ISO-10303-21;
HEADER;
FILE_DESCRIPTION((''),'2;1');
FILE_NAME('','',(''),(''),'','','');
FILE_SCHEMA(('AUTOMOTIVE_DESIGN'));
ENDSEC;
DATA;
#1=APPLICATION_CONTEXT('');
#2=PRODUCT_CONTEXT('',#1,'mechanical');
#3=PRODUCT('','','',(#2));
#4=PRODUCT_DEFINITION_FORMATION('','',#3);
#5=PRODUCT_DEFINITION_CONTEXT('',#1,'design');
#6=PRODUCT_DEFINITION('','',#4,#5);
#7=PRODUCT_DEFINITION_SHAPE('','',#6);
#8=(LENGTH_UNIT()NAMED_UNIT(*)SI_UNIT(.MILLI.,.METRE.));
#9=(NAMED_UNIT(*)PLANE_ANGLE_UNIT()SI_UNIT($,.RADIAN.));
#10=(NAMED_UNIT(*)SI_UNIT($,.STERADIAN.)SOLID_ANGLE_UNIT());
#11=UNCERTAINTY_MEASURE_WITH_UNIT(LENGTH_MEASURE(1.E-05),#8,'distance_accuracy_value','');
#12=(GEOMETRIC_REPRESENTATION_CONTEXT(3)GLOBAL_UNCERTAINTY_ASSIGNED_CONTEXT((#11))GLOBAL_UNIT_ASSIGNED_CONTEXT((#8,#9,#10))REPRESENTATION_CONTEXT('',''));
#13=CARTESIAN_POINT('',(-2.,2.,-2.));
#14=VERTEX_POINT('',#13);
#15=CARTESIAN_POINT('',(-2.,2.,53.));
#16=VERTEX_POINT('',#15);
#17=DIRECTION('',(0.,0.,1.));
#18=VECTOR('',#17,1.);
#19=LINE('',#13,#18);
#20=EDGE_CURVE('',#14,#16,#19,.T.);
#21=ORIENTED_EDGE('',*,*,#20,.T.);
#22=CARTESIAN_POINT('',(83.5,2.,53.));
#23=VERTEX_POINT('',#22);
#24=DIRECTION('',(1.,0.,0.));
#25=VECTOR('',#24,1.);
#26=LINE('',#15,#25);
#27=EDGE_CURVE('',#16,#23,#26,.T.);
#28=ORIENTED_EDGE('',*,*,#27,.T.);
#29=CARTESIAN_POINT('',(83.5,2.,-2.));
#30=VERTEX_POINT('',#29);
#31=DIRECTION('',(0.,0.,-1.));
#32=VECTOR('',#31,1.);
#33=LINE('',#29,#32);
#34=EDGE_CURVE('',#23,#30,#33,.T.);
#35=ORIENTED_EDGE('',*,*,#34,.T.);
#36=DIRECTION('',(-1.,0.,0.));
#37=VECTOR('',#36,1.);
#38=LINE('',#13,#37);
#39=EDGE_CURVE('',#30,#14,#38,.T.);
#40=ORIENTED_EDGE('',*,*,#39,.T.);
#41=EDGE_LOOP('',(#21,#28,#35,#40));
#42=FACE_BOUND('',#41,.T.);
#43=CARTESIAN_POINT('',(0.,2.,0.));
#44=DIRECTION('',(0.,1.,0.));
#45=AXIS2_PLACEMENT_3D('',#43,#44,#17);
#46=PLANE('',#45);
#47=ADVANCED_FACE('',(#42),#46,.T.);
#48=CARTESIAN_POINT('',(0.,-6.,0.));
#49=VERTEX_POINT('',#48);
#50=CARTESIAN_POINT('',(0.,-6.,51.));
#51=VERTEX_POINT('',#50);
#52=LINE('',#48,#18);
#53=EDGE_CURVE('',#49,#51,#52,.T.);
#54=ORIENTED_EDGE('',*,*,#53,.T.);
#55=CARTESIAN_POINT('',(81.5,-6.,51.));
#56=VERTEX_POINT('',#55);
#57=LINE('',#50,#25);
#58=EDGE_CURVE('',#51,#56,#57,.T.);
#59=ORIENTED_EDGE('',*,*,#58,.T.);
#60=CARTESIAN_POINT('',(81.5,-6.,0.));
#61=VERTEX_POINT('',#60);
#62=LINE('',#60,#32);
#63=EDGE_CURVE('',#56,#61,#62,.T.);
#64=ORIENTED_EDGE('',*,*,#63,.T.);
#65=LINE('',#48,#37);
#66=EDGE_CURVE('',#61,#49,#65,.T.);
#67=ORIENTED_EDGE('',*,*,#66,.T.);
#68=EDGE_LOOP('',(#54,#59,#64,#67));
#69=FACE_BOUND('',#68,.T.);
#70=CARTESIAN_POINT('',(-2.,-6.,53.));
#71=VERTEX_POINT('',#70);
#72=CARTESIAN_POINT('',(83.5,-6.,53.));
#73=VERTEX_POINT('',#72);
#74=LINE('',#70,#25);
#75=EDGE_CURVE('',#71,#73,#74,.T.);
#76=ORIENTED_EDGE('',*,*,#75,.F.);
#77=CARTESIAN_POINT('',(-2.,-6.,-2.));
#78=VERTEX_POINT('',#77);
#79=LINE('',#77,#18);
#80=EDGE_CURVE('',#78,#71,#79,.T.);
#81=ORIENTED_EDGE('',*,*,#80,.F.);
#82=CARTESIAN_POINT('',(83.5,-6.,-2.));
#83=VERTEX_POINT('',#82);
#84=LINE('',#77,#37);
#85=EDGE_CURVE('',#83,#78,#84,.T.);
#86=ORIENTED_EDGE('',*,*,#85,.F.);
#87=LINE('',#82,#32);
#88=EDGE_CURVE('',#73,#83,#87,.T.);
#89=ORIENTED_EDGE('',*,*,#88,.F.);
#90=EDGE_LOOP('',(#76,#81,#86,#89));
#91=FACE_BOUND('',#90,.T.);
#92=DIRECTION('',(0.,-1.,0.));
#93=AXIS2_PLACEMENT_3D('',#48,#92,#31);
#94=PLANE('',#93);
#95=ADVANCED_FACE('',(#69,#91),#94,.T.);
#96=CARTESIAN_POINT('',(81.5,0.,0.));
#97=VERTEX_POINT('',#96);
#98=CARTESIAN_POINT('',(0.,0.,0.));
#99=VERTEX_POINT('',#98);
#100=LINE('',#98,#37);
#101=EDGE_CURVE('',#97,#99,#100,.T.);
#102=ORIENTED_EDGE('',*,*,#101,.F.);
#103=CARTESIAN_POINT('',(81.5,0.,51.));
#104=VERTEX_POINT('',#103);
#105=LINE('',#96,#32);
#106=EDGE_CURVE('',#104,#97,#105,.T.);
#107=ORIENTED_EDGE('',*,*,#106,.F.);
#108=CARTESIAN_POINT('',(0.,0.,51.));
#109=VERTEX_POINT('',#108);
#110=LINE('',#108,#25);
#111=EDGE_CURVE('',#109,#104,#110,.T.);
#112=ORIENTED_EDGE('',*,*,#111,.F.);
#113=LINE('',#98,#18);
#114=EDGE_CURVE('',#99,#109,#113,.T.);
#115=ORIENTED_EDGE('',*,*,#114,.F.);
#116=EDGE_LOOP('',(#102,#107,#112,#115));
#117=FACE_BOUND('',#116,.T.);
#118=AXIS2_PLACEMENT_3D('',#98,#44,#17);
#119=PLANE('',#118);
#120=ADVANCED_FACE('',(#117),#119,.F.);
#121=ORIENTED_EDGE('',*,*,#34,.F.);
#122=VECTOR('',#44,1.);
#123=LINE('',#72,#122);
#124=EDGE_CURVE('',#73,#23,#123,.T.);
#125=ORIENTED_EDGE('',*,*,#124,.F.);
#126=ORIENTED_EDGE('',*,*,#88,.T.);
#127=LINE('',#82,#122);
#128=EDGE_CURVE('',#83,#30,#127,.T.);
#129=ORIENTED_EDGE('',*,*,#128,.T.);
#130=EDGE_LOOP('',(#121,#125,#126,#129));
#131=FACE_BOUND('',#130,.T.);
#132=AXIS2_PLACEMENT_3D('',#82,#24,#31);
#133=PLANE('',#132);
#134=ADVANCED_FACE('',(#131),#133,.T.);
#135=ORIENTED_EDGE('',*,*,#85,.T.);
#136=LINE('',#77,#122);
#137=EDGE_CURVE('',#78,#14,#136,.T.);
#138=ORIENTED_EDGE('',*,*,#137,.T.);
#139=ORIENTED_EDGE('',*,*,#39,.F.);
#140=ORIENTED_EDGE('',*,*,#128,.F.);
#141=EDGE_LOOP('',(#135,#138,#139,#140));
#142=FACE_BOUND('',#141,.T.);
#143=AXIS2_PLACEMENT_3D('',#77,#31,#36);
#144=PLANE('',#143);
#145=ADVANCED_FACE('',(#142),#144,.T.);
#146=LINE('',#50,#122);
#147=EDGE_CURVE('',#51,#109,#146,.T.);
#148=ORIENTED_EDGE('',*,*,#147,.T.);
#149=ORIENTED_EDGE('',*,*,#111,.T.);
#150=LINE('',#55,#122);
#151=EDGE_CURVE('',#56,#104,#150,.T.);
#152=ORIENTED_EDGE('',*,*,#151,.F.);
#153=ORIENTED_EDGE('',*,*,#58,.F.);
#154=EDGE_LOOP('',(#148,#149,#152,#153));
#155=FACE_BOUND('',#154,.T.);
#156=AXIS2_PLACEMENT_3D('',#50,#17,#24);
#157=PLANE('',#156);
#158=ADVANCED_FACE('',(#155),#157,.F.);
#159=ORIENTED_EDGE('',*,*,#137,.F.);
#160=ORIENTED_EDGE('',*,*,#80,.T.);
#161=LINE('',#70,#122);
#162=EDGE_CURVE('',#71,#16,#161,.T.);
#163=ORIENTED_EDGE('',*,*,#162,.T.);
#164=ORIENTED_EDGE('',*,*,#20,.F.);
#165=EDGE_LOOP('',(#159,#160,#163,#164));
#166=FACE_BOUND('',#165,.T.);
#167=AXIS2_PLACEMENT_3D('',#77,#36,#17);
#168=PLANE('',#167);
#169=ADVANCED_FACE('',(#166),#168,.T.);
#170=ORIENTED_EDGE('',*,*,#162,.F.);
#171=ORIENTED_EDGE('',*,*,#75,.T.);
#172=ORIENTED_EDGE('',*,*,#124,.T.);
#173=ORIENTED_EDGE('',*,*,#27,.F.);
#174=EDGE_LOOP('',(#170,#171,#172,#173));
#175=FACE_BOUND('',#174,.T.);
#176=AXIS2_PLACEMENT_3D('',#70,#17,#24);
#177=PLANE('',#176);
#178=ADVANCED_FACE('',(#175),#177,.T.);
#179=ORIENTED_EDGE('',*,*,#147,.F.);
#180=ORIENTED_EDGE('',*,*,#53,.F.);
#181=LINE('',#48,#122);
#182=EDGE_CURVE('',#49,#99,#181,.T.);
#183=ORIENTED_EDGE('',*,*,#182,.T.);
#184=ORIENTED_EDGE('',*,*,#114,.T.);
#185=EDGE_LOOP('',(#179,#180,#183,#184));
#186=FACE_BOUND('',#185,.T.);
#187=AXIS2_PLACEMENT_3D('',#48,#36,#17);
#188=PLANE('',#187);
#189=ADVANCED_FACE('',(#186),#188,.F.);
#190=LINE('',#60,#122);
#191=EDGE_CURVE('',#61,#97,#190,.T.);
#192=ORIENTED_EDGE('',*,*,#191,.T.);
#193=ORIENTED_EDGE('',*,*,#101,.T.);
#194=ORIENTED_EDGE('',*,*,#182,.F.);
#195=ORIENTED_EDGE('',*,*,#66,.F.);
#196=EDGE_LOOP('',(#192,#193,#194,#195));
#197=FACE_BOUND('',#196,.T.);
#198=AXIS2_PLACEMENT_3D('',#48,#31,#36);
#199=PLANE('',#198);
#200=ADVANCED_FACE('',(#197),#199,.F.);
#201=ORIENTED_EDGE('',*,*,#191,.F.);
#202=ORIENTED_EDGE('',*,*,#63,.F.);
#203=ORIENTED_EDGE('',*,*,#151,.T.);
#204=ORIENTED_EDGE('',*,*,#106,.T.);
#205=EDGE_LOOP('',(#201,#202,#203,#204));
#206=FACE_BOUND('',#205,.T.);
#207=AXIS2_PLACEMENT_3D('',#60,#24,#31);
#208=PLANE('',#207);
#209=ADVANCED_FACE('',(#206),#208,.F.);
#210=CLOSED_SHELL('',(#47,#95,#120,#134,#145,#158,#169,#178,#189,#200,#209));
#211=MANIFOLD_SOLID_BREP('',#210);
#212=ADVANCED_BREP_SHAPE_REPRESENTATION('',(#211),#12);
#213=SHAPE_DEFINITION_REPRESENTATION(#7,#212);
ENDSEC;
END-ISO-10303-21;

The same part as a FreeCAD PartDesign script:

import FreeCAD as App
import Part
import Sketcher
from FreeCAD import Vector


def add_polygon(sketch, points):
    """Adds a closed chain of lines whose ends are joined by coincident constraints."""
    first, n = sketch.GeometryCount, len(points)
    for a, b in zip(points, points[1:] + points[:1]):
        sketch.addGeometry(Part.LineSegment(App.Vector(*a, 0), App.Vector(*b, 0)), False)
    for i in range(n):
        sketch.addConstraint(Sketcher.Constraint("Coincident", first + i, 2, first + (i + 1) % n, 1))

doc = App.newDocument("Part")
body = doc.addObject("PartDesign::Body", "Body")

# Sketch on XZ plane
sketch1 = body.newObject("Sketcher::SketchObject", "Sketch")
sketch1.AttachmentSupport = (doc.getObject("XZ_Plane"), [""])
sketch1.MapMode = "FlatFace"
add_polygon(sketch1, [(0, 0), (0, 51), (82, 51), (82, 0)])  # lines 0-3
sketch1.addConstraint([
    Sketcher.Constraint("Vertical", 0),
    Sketcher.Constraint("Horizontal", 1),
    Sketcher.Constraint("Vertical", 2),
    Sketcher.Constraint("Horizontal", 3),
    Sketcher.Constraint("Coincident", 3, 2, -1, 1),
    Sketcher.Constraint("DistanceY", 0, 1, 0, 2, 51.0),
    Sketcher.Constraint("DistanceX", 1, 1, 1, 2, 81.5),
])
pad1 = body.newObject("PartDesign::Pad", "Pad")
pad1.Profile = sketch1
pad1.Length = 2
pad1.Reversed = True

# Sketch on XZ plane
sketch2 = body.newObject("Sketcher::SketchObject", "Sketch001")
sketch2.AttachmentSupport = (doc.getObject("XZ_Plane"), [""])
sketch2.MapMode = "FlatFace"
sketch2.AttachmentOffset = App.Placement(Vector(0, 0, -2), App.Rotation())
add_polygon(sketch2, [(-2, -2), (-2, 53), (84, 53), (84, -2)])  # lines 0-3
add_polygon(sketch2, [(82, 51), (0, 51), (0, 0), (82, 0)])  # lines 4-7
sketch2.addConstraint([
    Sketcher.Constraint("Vertical", 0),
    Sketcher.Constraint("Horizontal", 1),
    Sketcher.Constraint("Vertical", 2),
    Sketcher.Constraint("Horizontal", 3),
    Sketcher.Constraint("Horizontal", 4),
    Sketcher.Constraint("Vertical", 5),
    Sketcher.Constraint("Horizontal", 6),
    Sketcher.Constraint("Vertical", 7),
    Sketcher.Constraint("Coincident", 5, 2, -1, 1),
    Sketcher.Constraint("DistanceY", 0, 1, 0, 2, 55.0),
    Sketcher.Constraint("DistanceY", 5, 2, 5, 1, 51.0),
    Sketcher.Constraint("DistanceX", 1, 1, 1, 2, 85.5),
    Sketcher.Constraint("DistanceX", 4, 2, 4, 1, 81.5),
    Sketcher.Constraint("DistanceX", 0, 2, -1, 1, 2.0),
    Sketcher.Constraint("DistanceY", -1, 1, 0, 2, 53.0),
])
pad2 = body.newObject("PartDesign::Pad", "Pad001")
pad2.Profile = sketch2
pad2.Length = 8

doc.recompute()
